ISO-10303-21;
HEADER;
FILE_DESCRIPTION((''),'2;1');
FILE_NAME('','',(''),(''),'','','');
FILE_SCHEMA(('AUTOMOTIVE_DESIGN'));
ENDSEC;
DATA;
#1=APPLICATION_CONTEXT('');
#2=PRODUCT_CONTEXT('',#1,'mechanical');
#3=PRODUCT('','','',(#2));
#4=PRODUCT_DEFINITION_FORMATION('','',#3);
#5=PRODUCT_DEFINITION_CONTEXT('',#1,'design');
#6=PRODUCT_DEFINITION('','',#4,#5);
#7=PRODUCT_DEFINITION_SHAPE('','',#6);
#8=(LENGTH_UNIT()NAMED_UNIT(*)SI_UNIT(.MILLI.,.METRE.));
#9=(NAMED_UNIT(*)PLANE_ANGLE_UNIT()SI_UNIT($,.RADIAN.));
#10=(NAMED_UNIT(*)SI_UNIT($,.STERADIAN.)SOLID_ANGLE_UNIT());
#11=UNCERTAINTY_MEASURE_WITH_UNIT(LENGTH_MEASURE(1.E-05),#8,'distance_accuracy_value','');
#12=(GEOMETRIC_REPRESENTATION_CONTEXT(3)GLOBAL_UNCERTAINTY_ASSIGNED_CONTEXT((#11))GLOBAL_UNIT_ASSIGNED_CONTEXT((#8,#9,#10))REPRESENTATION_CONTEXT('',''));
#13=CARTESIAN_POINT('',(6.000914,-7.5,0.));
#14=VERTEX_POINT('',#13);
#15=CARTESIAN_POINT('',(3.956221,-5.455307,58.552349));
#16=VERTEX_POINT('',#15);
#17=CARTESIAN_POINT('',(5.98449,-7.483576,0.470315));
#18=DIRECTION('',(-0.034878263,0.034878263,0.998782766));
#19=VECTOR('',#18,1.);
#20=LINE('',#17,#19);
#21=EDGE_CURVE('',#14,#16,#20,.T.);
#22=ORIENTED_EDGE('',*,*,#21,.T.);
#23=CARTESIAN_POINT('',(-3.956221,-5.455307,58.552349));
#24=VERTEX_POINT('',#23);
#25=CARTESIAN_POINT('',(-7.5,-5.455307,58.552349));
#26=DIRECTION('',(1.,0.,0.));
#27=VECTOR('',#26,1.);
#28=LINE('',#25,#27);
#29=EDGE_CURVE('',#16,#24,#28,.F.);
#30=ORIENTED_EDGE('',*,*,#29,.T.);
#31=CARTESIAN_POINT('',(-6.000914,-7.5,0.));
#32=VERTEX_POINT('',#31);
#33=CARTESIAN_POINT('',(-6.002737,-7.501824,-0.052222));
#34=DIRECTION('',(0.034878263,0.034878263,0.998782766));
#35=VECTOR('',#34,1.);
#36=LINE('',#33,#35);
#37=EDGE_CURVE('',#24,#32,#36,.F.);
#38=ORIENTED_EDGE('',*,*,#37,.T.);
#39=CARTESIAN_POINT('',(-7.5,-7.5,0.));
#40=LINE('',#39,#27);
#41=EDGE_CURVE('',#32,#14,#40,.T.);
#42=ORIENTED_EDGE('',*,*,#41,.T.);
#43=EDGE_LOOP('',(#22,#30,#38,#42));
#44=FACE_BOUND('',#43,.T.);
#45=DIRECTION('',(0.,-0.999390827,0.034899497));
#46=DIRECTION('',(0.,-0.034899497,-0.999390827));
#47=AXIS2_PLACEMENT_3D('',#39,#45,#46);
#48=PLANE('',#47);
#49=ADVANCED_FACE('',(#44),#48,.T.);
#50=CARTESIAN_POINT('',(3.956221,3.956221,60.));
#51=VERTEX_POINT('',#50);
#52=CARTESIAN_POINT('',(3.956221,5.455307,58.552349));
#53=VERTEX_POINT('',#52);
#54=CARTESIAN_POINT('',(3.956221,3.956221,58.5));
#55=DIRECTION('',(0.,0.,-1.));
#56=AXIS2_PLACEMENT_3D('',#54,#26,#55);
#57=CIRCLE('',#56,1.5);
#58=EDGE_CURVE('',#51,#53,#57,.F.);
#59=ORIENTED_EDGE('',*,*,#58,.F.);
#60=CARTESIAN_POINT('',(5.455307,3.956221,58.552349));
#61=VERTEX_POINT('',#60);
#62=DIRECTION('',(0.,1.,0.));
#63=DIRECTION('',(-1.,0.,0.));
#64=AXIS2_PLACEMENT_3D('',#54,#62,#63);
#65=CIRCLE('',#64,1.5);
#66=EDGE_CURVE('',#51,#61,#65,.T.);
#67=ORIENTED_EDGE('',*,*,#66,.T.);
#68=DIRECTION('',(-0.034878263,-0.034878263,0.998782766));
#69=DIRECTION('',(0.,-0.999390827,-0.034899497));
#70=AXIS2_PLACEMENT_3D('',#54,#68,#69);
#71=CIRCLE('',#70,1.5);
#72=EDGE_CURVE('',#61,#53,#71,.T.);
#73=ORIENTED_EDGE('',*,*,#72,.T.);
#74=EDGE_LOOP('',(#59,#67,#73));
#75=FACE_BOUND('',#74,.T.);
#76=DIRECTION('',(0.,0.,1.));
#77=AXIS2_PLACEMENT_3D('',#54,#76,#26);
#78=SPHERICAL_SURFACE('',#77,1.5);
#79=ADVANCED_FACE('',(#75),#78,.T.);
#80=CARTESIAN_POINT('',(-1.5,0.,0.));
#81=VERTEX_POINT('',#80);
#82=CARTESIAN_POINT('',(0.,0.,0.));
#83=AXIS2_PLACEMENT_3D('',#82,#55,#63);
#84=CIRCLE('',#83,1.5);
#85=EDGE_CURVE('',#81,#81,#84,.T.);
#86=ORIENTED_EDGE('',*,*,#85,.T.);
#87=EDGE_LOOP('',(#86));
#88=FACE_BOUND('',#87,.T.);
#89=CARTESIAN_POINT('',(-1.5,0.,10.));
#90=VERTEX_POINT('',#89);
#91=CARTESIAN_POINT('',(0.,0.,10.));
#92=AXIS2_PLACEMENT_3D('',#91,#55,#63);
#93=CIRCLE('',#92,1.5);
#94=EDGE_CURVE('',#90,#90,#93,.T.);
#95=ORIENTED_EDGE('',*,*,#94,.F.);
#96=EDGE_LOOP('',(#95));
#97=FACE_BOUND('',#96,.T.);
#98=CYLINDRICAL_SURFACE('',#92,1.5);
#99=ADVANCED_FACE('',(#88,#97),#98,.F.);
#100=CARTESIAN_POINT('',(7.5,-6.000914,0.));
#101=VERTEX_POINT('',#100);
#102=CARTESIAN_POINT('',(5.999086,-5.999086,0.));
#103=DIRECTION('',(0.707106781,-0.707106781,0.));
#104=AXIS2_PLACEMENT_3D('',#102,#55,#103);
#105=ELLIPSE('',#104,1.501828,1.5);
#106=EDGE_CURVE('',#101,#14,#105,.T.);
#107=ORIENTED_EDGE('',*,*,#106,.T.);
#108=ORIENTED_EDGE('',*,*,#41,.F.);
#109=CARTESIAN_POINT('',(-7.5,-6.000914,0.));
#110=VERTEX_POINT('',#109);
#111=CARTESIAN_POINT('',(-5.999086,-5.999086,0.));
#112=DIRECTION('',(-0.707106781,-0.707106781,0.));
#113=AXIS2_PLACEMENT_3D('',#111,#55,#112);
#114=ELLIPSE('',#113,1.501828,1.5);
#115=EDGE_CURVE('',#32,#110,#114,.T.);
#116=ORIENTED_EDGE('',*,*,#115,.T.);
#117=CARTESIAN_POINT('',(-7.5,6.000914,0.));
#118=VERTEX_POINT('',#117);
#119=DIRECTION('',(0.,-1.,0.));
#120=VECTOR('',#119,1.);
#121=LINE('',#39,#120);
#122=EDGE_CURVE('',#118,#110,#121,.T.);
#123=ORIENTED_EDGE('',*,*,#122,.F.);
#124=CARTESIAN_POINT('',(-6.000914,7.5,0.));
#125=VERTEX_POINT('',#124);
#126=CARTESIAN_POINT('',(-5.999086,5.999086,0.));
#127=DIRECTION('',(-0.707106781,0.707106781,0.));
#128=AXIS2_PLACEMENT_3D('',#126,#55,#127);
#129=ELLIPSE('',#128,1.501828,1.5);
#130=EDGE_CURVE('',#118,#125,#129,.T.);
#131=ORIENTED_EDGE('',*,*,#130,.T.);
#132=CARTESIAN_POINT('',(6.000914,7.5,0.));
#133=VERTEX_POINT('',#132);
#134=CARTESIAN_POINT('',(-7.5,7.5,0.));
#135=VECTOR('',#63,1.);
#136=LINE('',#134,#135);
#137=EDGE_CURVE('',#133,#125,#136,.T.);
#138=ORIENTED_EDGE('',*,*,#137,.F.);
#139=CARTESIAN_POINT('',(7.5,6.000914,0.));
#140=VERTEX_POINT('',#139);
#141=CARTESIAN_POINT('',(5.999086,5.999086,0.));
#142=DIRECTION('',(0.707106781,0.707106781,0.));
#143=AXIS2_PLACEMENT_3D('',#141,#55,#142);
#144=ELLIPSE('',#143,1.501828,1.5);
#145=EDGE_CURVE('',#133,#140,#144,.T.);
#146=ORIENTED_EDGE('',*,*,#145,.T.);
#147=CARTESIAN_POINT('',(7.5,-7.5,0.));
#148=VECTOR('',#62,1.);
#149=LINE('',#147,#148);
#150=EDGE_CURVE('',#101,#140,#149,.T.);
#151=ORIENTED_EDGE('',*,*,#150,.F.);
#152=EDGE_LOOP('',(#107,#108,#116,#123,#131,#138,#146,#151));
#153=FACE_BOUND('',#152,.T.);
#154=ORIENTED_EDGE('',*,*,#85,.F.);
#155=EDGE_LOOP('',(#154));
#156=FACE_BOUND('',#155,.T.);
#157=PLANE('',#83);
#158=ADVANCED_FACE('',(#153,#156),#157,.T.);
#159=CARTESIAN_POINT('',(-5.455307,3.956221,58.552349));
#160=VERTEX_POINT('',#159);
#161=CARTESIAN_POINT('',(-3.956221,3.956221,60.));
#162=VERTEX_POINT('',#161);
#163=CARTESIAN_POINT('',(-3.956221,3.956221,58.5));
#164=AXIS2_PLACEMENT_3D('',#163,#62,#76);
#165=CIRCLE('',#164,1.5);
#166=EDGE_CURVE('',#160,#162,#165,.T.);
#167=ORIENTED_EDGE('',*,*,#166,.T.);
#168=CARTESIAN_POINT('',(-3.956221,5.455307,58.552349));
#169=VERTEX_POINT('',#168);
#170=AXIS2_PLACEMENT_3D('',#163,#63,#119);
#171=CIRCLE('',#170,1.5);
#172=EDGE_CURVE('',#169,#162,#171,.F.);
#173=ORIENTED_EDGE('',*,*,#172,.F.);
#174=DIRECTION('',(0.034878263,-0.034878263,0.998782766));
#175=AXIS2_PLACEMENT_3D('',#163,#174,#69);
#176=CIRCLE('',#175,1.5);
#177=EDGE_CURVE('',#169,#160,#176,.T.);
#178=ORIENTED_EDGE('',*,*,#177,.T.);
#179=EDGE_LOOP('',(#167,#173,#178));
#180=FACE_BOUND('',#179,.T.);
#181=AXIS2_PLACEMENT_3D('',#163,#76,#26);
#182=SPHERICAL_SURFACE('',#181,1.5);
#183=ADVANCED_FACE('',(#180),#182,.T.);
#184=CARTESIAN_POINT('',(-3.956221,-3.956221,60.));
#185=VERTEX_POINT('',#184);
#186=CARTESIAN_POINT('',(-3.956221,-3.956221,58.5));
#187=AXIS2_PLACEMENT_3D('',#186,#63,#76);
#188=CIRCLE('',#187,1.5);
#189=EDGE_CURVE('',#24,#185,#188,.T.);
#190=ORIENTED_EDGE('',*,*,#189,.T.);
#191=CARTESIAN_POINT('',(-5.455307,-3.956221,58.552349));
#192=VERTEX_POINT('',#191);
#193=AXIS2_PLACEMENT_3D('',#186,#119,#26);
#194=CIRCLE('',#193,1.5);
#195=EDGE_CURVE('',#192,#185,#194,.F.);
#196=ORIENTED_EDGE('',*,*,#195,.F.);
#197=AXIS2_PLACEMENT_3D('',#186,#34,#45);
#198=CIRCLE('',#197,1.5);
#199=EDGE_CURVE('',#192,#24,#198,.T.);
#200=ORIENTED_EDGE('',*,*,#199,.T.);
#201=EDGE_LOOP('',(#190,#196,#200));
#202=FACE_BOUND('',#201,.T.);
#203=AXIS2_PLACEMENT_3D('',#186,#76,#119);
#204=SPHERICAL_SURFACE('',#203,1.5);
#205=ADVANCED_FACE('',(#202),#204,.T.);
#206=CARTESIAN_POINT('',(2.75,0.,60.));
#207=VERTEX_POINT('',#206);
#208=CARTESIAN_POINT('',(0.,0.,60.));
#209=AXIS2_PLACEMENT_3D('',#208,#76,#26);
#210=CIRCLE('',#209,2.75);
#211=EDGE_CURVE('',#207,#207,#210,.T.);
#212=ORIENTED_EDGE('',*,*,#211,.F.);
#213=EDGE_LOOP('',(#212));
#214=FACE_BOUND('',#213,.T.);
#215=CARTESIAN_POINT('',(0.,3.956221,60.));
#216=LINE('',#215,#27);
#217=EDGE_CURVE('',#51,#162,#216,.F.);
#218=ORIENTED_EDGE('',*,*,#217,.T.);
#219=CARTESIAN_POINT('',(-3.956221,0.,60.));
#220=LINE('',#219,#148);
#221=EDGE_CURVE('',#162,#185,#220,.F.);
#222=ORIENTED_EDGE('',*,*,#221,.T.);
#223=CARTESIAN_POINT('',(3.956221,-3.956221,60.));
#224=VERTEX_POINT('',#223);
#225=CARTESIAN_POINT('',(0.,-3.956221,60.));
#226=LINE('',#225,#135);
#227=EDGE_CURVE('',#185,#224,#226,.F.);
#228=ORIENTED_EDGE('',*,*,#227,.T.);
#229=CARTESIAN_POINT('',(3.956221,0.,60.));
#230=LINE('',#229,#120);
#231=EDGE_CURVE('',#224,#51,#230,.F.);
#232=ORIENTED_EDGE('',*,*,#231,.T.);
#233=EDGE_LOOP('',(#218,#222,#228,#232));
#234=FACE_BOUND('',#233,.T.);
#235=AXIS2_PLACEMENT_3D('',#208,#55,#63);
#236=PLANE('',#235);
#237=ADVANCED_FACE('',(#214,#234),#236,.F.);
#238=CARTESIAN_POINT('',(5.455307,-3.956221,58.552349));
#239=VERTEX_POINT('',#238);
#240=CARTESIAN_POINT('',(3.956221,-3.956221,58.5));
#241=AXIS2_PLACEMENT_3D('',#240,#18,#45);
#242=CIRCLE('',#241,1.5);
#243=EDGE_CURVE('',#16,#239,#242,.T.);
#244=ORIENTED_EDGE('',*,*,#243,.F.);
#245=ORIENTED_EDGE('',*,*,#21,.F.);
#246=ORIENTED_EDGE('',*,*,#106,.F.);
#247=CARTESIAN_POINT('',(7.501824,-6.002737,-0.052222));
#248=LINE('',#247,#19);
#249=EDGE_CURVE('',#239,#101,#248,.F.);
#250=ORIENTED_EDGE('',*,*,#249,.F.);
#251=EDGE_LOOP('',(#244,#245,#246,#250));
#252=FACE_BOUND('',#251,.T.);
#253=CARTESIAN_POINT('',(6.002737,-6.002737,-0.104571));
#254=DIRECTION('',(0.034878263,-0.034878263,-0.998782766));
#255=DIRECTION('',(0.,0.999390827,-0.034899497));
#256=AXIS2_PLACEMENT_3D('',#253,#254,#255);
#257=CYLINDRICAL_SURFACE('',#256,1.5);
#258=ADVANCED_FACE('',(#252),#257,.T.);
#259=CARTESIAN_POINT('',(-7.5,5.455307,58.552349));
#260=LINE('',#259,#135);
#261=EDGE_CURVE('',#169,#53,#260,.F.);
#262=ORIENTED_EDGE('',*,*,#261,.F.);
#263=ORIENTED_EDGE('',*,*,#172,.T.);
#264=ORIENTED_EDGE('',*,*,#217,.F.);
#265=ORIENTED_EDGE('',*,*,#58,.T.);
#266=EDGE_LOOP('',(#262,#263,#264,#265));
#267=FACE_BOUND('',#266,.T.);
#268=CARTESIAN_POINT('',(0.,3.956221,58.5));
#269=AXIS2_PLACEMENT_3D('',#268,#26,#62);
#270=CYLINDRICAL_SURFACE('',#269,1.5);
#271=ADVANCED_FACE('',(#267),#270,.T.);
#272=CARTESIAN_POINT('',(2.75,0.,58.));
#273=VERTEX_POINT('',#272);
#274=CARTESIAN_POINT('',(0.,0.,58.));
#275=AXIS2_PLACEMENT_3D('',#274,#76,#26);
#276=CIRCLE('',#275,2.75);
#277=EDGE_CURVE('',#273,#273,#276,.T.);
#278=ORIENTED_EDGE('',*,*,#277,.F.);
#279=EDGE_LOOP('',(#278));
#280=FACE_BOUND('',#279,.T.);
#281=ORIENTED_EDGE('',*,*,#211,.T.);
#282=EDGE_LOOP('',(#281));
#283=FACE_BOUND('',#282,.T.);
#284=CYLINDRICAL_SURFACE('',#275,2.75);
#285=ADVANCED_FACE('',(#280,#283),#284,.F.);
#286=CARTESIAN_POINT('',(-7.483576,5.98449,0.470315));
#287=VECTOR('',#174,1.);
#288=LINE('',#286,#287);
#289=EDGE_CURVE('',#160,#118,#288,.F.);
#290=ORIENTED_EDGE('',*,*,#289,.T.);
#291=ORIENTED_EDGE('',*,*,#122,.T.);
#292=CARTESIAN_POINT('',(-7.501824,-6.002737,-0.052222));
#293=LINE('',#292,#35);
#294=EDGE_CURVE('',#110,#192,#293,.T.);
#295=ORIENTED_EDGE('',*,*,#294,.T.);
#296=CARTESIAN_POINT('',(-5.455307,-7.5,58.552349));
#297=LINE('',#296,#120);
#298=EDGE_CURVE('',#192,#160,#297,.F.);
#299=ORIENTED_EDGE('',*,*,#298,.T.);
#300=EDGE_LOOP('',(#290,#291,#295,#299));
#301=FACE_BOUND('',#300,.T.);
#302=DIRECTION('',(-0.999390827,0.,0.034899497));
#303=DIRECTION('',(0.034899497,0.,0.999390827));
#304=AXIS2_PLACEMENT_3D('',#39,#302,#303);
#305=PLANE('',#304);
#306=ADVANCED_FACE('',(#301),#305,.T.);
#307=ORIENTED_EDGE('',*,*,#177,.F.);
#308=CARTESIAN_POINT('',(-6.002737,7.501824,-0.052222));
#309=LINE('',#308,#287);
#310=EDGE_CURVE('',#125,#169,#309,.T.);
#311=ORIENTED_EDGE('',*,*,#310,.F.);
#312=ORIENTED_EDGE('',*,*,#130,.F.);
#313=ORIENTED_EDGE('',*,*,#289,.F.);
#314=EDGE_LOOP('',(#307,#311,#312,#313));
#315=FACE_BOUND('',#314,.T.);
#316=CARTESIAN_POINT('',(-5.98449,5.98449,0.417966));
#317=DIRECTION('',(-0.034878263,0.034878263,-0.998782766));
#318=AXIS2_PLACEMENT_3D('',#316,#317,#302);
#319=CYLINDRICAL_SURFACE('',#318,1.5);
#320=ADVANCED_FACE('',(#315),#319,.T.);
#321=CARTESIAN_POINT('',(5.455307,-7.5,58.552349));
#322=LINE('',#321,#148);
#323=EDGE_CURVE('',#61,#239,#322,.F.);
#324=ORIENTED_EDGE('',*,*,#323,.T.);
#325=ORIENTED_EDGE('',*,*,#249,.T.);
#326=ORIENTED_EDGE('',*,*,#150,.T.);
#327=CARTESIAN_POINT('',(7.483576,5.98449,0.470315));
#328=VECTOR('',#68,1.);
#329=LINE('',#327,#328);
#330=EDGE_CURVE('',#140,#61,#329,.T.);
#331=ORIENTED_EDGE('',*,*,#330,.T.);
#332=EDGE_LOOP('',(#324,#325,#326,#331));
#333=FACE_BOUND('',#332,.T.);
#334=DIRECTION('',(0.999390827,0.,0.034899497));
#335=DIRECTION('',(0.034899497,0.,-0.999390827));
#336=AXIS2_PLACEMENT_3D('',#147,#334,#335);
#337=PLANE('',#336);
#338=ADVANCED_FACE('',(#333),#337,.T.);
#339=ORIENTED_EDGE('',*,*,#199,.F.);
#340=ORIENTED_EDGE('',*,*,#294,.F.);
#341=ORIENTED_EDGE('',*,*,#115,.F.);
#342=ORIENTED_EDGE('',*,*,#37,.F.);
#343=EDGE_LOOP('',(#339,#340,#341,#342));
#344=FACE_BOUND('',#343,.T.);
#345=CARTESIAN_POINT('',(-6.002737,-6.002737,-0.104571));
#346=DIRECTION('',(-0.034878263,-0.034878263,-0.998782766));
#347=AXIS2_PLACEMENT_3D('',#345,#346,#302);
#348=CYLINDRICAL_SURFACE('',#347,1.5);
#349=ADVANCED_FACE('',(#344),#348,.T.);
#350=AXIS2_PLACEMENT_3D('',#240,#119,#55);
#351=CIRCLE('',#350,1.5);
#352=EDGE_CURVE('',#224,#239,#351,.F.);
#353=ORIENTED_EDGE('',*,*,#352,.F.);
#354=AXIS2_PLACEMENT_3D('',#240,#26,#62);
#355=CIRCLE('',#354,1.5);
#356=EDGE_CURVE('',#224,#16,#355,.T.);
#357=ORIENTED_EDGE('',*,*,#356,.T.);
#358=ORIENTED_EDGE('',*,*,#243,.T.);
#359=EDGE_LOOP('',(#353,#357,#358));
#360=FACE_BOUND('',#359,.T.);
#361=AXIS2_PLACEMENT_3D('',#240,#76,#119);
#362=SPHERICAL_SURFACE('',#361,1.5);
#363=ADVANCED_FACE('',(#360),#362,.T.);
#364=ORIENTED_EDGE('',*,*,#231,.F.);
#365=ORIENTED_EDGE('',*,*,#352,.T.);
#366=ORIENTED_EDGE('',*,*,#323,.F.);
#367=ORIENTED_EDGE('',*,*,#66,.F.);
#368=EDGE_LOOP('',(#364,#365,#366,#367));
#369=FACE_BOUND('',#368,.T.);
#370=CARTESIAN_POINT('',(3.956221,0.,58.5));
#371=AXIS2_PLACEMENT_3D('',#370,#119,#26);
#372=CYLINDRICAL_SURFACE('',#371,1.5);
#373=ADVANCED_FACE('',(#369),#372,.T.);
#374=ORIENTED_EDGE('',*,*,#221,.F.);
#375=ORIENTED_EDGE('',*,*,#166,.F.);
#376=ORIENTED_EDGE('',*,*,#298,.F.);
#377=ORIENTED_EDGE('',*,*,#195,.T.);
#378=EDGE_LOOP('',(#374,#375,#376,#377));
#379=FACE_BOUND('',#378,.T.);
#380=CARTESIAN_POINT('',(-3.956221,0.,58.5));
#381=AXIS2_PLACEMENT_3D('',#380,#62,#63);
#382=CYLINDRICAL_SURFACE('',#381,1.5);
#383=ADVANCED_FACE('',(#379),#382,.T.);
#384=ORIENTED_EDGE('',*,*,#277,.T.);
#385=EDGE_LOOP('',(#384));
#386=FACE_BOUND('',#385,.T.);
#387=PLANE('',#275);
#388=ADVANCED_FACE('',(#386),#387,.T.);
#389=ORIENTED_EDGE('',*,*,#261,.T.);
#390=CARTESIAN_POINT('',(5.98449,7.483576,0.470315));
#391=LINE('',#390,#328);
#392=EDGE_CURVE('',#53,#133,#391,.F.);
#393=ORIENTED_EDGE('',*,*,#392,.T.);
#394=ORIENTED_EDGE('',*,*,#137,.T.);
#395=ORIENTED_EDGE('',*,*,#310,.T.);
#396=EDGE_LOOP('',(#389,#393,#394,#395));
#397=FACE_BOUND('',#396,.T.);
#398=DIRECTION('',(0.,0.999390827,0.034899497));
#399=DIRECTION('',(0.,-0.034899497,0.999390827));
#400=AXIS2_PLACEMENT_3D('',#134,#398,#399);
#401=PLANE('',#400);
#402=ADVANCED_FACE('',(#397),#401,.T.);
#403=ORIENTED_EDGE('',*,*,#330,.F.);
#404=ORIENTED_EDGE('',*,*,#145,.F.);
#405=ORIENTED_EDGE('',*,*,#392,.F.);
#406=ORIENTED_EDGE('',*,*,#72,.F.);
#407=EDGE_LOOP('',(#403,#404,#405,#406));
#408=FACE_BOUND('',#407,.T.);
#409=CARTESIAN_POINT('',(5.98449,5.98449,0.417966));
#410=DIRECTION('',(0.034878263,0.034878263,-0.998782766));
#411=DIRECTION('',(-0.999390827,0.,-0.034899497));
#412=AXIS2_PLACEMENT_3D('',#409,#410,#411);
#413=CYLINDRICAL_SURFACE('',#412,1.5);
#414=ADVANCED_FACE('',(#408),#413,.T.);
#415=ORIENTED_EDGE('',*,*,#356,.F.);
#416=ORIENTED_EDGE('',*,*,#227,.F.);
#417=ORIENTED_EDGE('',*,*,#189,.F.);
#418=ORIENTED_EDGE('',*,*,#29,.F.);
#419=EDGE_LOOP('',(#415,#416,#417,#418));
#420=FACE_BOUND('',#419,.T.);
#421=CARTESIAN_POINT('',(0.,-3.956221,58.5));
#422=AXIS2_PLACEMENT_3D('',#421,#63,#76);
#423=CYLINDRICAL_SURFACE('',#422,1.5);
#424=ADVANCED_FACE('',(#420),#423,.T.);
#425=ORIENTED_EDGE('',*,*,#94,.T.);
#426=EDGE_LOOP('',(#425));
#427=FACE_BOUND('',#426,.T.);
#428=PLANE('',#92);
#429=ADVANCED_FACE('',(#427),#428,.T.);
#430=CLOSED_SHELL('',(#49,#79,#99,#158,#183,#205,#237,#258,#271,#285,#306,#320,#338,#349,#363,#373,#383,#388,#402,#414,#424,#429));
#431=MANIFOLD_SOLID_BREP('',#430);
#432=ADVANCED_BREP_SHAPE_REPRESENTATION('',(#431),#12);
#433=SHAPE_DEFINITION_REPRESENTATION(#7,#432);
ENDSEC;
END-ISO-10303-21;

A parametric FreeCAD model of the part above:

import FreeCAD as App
import Part
import Sketcher

V = App.Vector
Q = App.Units.Quantity


def edges_at(feature, points):
    """Names of the edges that pass closest to the given points."""
    edges = feature.Shape.Edges
    near = lambda p: min(range(len(edges)), key=lambda i: edges[i].distToShape(Part.Vertex(*p))[0])
    return sorted({f"Edge{near(p) + 1}" for p in points})


def add_polygon(sketch, points):
    """Adds a closed chain of lines whose ends are joined by coincident constraints."""
    first, n = sketch.GeometryCount, len(points)
    for a, b in zip(points, points[1:] + points[:1]):
        sketch.addGeometry(Part.LineSegment(App.Vector(*a, 0), App.Vector(*b, 0)), False)
    for i in range(n):
        sketch.addConstraint(Sketcher.Constraint("Coincident", first + i, 2, first + (i + 1) % n, 1))

doc = App.newDocument("Part")
body = doc.addObject("PartDesign::Body", "Body")

# Sketch on XY plane
sketch1 = doc.addObject("Sketcher::SketchObject", "Sketch")
body.addObject(sketch1)
sketch1.AttachmentSupport = (doc.XY_Plane, [""])
sketch1.MapMode = "FlatFace"
add_polygon(sketch1, [(-8, 8), (-8, -8), (8, -8), (8, 8)])  # lines 0-3
sketch1.addConstraint([
    Sketcher.Constraint("Vertical", 0),
    Sketcher.Constraint("Horizontal", 1),
    Sketcher.Constraint("Vertical", 2),
    Sketcher.Constraint("Horizontal", 3),
    Sketcher.Constraint("Symmetric", 0, 2, 2, 2, -1, 1),
    Sketcher.Constraint("Equal", 3, 0),
    Sketcher.Constraint("DistanceX", 1, 1, 1, 2, Q("15 mm")),
])
pad1 = doc.addObject("PartDesign::Pad", "Pad")
body.addObject(pad1)
pad1.Profile = sketch1
pad1.Length = 60
pad1.TaperAngle = -2

# Sketch on XY plane
sketch2 = doc.addObject("Sketcher::SketchObject", "Sketch001")
body.addObject(sketch2)
sketch2.AttachmentSupport = (doc.XY_Plane, [""])
sketch2.MapMode = "FlatFace"
sketch2.addGeometry(Part.Circle(V(0, 0, 0), V(0, 0, 1), 1.5), False)
sketch2.addConstraint([
    Sketcher.Constraint("Coincident", 0, 3, -1, 1),
    Sketcher.Constraint("Diameter", 0, Q("3 mm")),
])
pocket1 = doc.addObject("PartDesign::Pocket", "Pocket")
body.addObject(pocket1)
pocket1.Profile = sketch2
pocket1.Length = 10
pocket1.Reversed = True

# Sketch on XY plane
sketch3 = doc.addObject("Sketcher::SketchObject", "Sketch002")
body.addObject(sketch3)
sketch3.AttachmentSupport = (doc.XY_Plane, [""])
sketch3.MapMode = "FlatFace"
sketch3.AttachmentOffset = App.Placement(V(0, 0, 60), App.Rotation())
sketch3.addGeometry(Part.Circle(V(0, 0, 0), V(0, 0, 1), 2.8), False)
sketch3.addConstraint([
    Sketcher.Constraint("Coincident", 0, 3, -1, 1),
    Sketcher.Constraint("Diameter", 0, Q("5.5 mm")),
])
pocket2 = doc.addObject("PartDesign::Pocket", "Pocket001")
body.addObject(pocket2)
pocket2.Profile = sketch3
pocket2.Length = 2
doc.recompute()

fillet = doc.addObject("PartDesign::Fillet", "Fillet")
body.addObject(fillet)
fillet.Base = (pocket2, edges_at(pocket2, [
    (-5.405, 0, 60),
    (0, -5.405, 60),
    (5.405, 0, 60),
    (6.452, -6.452, 30),
    (-6.452, -6.452, 30),
    (-6.452, 6.452, 30),
    (6.452, 6.452, 30),
    (0, 5.405, 60),
]))
fillet.Radius = 1.5

doc.recompute()
